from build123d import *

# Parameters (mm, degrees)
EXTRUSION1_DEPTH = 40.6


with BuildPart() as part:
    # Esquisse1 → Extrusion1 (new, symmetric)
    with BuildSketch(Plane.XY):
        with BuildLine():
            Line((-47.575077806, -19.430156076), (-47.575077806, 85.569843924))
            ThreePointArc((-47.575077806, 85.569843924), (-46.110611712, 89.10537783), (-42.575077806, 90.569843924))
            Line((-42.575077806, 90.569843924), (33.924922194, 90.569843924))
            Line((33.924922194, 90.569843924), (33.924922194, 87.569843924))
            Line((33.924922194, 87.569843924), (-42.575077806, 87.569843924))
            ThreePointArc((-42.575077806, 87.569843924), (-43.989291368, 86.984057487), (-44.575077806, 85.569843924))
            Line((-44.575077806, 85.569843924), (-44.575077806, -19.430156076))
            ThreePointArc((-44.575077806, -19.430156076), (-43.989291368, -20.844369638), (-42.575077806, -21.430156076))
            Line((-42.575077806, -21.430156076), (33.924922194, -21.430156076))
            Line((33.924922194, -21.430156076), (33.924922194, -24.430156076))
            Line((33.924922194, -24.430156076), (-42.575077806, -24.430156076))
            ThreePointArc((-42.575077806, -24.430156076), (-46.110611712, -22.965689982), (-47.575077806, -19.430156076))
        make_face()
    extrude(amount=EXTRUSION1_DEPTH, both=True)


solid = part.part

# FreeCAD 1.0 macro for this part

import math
import FreeCAD as App
import Part
import Sketcher
Q = App.Units.Quantity

doc = App.newDocument("Part")
params = doc.addObject("Spreadsheet::Sheet", "Params")
for row, (alias, value) in enumerate([
    ("sketch1_radius", "5 mm"),
    ("sketch1_radius2", "2 mm"),
    ("sketch1_height", "105 mm"),
    ("sketch1_width", "76.5 mm"),
    ("pad1_length", "81.2 mm"),
], start=1):
    params.set(f"A{row}", alias)
    params.set(f"B{row}", "=" + value)
    params.setAlias(f"B{row}", alias)

body = doc.addObject("PartDesign::Body", "Body")

# Sketch on XY plane
sketch1 = body.newObject("Sketcher::SketchObject", "Sketch")
sketch1.AttachmentSupport = (doc.getObject("XY_Plane"), [""])
sketch1.MapMode = "FlatFace"
sketch1.addGeometry([
    Part.LineSegment(App.Vector(-47.6, 85.6, 0), App.Vector(-47.6, -19.4, 0)),  # 0
    Part.ArcOfCircle(Part.Circle(App.Vector(-42.6, -19.4, 0), App.Vector(0, 0, 1), 5), math.radians(180), math.radians(270)),  # 1
    Part.LineSegment(App.Vector(-42.6, -24.4, 0), App.Vector(33.9, -24.4, 0)),  # 2
    Part.LineSegment(App.Vector(33.9, -24.4, 0), App.Vector(33.9, -21.4, 0)),  # 3
    Part.LineSegment(App.Vector(33.9, -21.4, 0), App.Vector(-42.6, -21.4, 0)),  # 4
    Part.ArcOfCircle(Part.Circle(App.Vector(-42.6, -19.4, 0), App.Vector(0, 0, 1), 2), math.radians(-180), math.radians(-90)),  # 5
    Part.LineSegment(App.Vector(-44.6, -19.4, 0), App.Vector(-44.6, 85.6, 0)),  # 6
    Part.ArcOfCircle(Part.Circle(App.Vector(-42.6, 85.6, 0), App.Vector(0, 0, 1), 2), math.radians(90), math.radians(180)),  # 7
    Part.LineSegment(App.Vector(-42.6, 87.6, 0), App.Vector(33.9, 87.6, 0)),  # 8
    Part.LineSegment(App.Vector(33.9, 87.6, 0), App.Vector(33.9, 90.6, 0)),  # 9
    Part.LineSegment(App.Vector(33.9, 90.6, 0), App.Vector(-42.6, 90.6, 0)),  # 10
    Part.ArcOfCircle(Part.Circle(App.Vector(-42.6, 85.6, 0), App.Vector(0, 0, 1), 5), math.radians(90), math.radians(180)),  # 11
], False)
sketch1.addConstraint([
    Sketcher.Constraint("Tangent", 0, 2, 1, 1),
    Sketcher.Constraint("Tangent", 1, 2, 2, 1),
    Sketcher.Constraint("Coincident", 2, 2, 3, 1),
    Sketcher.Constraint("Coincident", 3, 2, 4, 1),
    Sketcher.Constraint("Tangent", 4, 2, 5, 2),
    Sketcher.Constraint("Tangent", 5, 1, 6, 1),
    Sketcher.Constraint("Tangent", 6, 2, 7, 2),
    Sketcher.Constraint("Tangent", 7, 1, 8, 1),
    Sketcher.Constraint("Coincident", 8, 2, 9, 1),
    Sketcher.Constraint("Coincident", 9, 2, 10, 1),
    Sketcher.Constraint("Tangent", 10, 2, 11, 1),
    Sketcher.Constraint("Tangent", 11, 2, 0, 1),
    Sketcher.Constraint("Vertical", 0),
    Sketcher.Constraint("Horizontal", 2),
    Sketcher.Constraint("Vertical", 3),
    Sketcher.Constraint("Horizontal", 4),
    Sketcher.Constraint("Vertical", 6),
    Sketcher.Constraint("Horizontal", 8),
    Sketcher.Constraint("Vertical", 9),
    Sketcher.Constraint("Horizontal", 10),
    Sketcher.Constraint("Coincident", 5, 3, 1, 3),
    Sketcher.Constraint("Coincident", 11, 3, 7, 3),
    Sketcher.Constraint("Equal", 5, 7),
    Sketcher.Constraint("Vertical", 3, 2, 8, 2),
    Sketcher.Constraint("Radius", 1, Q("5 mm")),
    Sketcher.Constraint("Radius", 5, Q("2 mm")),
    Sketcher.Constraint("DistanceY", 0, 2, 0, 1, Q("105 mm")),
    Sketcher.Constraint("DistanceX", 2, 1, 2, 2, Q("76.5 mm")),
    Sketcher.Constraint("DistanceX", 1, 3, -1, 1, Q("42.575078 mm")),
    Sketcher.Constraint("DistanceY", 1, 3, -1, 1, Q("19.430156 mm")),
])
sketch1.setExpression("Constraints[24]", "Params.sketch1_radius")
sketch1.setExpression("Constraints[25]", "Params.sketch1_radius2")
sketch1.setExpression("Constraints[26]", "Params.sketch1_height")
sketch1.setExpression("Constraints[27]", "Params.sketch1_width")
pad1 = body.newObject("PartDesign::Pad", "Pad")
pad1.Profile = sketch1
pad1.setExpression("Length", "Params.pad1_length")
pad1.Midplane = True

doc.recompute()
